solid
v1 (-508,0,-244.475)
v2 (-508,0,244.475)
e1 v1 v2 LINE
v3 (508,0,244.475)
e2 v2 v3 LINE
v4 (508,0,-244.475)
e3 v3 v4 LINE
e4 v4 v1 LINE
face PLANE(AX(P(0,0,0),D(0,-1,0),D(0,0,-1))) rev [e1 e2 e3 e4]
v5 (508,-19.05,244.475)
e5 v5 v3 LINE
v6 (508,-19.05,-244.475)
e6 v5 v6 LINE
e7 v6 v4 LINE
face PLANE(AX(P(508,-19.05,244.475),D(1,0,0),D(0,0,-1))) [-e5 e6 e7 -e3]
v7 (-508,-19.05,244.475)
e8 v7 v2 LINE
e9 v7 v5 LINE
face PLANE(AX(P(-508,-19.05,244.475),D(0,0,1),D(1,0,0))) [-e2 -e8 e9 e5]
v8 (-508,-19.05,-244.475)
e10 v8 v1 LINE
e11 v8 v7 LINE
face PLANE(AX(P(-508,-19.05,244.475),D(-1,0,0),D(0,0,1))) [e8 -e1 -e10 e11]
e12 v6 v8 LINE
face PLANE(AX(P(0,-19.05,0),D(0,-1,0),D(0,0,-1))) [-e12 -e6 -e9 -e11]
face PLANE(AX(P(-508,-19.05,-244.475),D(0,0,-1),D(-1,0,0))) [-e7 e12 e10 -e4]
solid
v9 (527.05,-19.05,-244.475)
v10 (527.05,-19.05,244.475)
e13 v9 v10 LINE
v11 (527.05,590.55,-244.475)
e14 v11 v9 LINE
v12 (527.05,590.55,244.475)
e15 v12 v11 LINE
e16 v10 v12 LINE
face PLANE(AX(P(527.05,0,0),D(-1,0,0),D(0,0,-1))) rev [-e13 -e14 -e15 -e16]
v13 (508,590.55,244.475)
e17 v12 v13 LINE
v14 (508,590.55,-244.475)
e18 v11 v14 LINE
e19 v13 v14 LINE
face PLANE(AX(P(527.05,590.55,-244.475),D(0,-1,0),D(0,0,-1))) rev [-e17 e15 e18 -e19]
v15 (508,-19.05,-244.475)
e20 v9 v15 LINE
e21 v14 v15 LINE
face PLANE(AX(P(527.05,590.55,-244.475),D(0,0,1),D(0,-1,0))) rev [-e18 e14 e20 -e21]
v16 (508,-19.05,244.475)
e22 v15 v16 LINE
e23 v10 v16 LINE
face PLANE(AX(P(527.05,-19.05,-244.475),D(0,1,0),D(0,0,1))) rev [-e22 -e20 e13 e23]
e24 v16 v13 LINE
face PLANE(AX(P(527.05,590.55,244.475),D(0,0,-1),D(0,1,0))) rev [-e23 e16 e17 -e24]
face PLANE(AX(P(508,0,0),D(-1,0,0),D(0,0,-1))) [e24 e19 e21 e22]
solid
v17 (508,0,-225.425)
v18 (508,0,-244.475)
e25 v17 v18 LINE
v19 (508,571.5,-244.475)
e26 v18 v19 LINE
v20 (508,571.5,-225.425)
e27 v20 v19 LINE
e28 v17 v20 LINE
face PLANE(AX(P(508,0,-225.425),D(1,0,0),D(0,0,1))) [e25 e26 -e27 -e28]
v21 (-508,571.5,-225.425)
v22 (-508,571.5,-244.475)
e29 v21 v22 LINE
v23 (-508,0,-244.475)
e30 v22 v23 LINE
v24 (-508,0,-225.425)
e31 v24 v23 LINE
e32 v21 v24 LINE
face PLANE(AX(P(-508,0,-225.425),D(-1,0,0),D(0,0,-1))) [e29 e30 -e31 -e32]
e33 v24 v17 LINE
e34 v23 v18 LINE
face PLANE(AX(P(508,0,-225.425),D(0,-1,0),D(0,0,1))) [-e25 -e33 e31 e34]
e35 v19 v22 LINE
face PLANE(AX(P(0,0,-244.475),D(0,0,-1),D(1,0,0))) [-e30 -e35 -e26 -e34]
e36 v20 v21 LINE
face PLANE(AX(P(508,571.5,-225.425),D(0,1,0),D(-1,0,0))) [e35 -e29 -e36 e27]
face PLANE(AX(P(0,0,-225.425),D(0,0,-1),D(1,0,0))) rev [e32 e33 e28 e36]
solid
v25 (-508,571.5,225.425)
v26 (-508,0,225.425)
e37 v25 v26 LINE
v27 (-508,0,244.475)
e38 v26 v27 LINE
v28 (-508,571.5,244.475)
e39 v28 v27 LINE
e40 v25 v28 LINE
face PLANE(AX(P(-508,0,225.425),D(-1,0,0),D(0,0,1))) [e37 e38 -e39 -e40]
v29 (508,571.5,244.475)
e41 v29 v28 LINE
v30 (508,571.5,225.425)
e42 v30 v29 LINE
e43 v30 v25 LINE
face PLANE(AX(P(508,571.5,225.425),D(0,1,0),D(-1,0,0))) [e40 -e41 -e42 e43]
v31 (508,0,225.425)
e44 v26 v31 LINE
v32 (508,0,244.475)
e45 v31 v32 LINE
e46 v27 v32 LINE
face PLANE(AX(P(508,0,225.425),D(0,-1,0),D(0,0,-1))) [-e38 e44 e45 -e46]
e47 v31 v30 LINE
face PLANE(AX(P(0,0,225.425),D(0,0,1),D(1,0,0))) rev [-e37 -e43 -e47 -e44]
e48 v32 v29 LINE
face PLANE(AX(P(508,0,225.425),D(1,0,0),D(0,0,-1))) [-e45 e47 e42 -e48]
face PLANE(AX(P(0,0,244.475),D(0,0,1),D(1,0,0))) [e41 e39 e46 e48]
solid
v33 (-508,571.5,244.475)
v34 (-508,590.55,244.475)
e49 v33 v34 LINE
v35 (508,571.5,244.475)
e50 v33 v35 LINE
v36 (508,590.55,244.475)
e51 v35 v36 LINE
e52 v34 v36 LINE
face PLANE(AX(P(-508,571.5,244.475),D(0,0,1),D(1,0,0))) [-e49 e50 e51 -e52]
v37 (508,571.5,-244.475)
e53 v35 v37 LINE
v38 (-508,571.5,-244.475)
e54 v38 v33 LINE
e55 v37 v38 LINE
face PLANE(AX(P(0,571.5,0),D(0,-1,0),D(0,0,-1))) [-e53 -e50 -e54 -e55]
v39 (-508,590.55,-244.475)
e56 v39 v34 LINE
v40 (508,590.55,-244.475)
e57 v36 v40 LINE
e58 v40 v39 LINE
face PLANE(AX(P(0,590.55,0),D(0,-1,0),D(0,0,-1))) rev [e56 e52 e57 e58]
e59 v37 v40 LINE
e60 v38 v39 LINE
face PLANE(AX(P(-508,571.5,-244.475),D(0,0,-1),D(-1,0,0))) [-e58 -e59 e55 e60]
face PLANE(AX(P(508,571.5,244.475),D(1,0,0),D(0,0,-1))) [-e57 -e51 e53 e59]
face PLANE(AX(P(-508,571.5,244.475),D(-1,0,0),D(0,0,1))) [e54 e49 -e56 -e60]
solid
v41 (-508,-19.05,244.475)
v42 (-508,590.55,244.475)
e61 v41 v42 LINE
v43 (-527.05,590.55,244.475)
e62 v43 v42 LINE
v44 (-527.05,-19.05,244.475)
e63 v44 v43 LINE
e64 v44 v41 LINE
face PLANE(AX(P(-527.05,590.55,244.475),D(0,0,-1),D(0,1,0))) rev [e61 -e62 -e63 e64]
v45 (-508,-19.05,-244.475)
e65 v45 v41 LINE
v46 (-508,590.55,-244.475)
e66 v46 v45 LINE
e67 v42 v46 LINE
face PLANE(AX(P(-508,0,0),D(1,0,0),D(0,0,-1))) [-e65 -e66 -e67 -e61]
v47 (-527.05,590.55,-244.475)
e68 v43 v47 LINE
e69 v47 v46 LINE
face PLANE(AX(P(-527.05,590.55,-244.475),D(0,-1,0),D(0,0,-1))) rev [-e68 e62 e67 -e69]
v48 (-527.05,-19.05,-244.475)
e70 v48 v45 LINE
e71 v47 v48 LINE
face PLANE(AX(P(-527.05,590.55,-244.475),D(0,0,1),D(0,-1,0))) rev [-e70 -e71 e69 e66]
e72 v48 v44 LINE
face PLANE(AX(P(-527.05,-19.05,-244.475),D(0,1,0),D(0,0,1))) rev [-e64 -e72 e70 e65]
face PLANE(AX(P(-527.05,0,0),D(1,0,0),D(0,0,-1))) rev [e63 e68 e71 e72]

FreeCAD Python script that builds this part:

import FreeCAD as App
import Part
import Sketcher

V = App.Vector
Q = App.Units.Quantity

doc = App.newDocument("Part")
params = doc.addObject("Spreadsheet::Sheet", "Params")
for row, (alias, value) in enumerate([
    ("sketch1_width", "40 in"),
    ("sketch1_height", "19.25 in"),
    ("pad1_length", "0.75 in"),
    ("sketch2_width", "24 in"),
    ("sketch2_height", "19.25 in"),
    ("pad2_length", "0.75 in"),
    ("sketch3_width", "40 in"),
    ("sketch3_height", "19.25 in"),
    ("pad3_length", "0.75 in"),
    ("sketch4_width", "40 in"),
    ("sketch4_height", "22.5 in"),
    ("pad4_length", "0.75 in"),
], start=1):
    params.set(f"A{row}", alias)
    params.set(f"B{row}", "=" + value)
    params.setAlias(f"B{row}", alias)

body = doc.addObject("PartDesign::Body", "Body")

# Sketch on XZ plane
sketch1 = body.newObject("Sketcher::SketchObject", "Sketch")
sketch1.AttachmentSupport = (doc.getObject("XZ_Plane"), [""])
sketch1.MapMode = "FlatFace"
sketch1.addGeometry([
    Part.LineSegment(V(-508, -244, 0), V(-508, 244, 0)),
    Part.LineSegment(V(-508, 244, 0), V(508, 244, 0)),
    Part.LineSegment(V(508, 244, 0), V(508, -244, 0)),
    Part.LineSegment(V(508, -244, 0), V(-508, -244, 0)),
], False)
sketch1.addConstraint([
    Sketcher.Constraint("Coincident", 0, 2, 1, 1),
    Sketcher.Constraint("Coincident", 1, 2, 2, 1),
    Sketcher.Constraint("Coincident", 2, 2, 3, 1),
    Sketcher.Constraint("Coincident", 3, 2, 0, 1),
    Sketcher.Constraint("Vertical", 0),
    Sketcher.Constraint("Horizontal", 1),
    Sketcher.Constraint("Vertical", 2),
    Sketcher.Constraint("Horizontal", 3),
    Sketcher.Constraint("Symmetric", 0, 2, 2, 2, -1, 1),
    Sketcher.Constraint("DistanceX", 1, 1, 1, 2, Q("40 in")),
    Sketcher.Constraint("DistanceY", 0, 1, 0, 2, Q("19.25 in")),
])
sketch1.setExpression("Constraints[9]", "Params.sketch1_width")
sketch1.setExpression("Constraints[10]", "Params.sketch1_height")
pad1 = body.newObject("PartDesign::Pad", "Pad")
pad1.Profile = sketch1
pad1.setExpression("Length", "Params.pad1_length")
body2 = doc.addObject("PartDesign::Body", "Body001")

# Sketch on YZ plane
sketch2 = body2.newObject("Sketcher::SketchObject", "Sketch001")
sketch2.AttachmentSupport = (doc.getObject("YZ_Plane001"), [""])
sketch2.MapMode = "FlatFace"
sketch2.AttachmentOffset = App.Placement(V(0, 0, -20 * 25.4), App.Rotation())
sketch2.addGeometry([
    Part.LineSegment(V(591, -244, 0), V(-19, -244, 0)),
    Part.LineSegment(V(-19, -244, 0), V(-19, 244, 0)),
    Part.LineSegment(V(-19, 244, 0), V(591, 244, 0)),
    Part.LineSegment(V(591, 244, 0), V(591, -244, 0)),
], False)
sketch2.addConstraint([
    Sketcher.Constraint("Coincident", 0, 2, 1, 1),
    Sketcher.Constraint("Coincident", 1, 2, 2, 1),
    Sketcher.Constraint("Coincident", 2, 2, 3, 1),
    Sketcher.Constraint("Coincident", 3, 2, 0, 1),
    Sketcher.Constraint("Horizontal", 0),
    Sketcher.Constraint("Vertical", 1),
    Sketcher.Constraint("Horizontal", 2),
    Sketcher.Constraint("Vertical", 3),
    Sketcher.Constraint("DistanceX", 0, 2, 0, 1, Q("24 in")),
    Sketcher.Constraint("DistanceY", 1, 1, 1, 2, Q("19.25 in")),
    Sketcher.Constraint("DistanceX", 0, 2, -1, 1, Q("0.75 in")),
    Sketcher.Constraint("DistanceY", 0, 2, -1, 1, Q("9.625 in")),
])
sketch2.setExpression("Constraints[8]", "Params.sketch2_width")
sketch2.setExpression("Constraints[9]", "Params.sketch2_height")
pad2 = body2.newObject("PartDesign::Pad", "Pad001")
pad2.Profile = sketch2
pad2.setExpression("Length", "Params.pad2_length")
pad2.Reversed = True
body3 = doc.addObject("PartDesign::Body", "Body002")
doc.recompute()

mirroring = doc.addObject("Part::Mirroring", "Mirroring")
mirroring.Source = body2
mirroring.Base = V(0, 0, 0)
mirroring.Normal = V(1, 0, 0)
body3.BaseFeature = mirroring
doc.recompute()
body4 = doc.addObject("PartDesign::Body", "Body003")

# Sketch on XZ plane
sketch3 = body4.newObject("Sketcher::SketchObject", "Sketch002")
sketch3.AttachmentSupport = (doc.getObject("XZ_Plane003"), [""])
sketch3.MapMode = "FlatFace"
sketch3.AttachmentOffset = App.Placement(V(0, 0, -23.25 * 25.4), App.Rotation())
sketch3.addGeometry([
    Part.LineSegment(V(-508, -244, 0), V(-508, 244, 0)),
    Part.LineSegment(V(-508, 244, 0), V(508, 244, 0)),
    Part.LineSegment(V(508, 244, 0), V(508, -244, 0)),
    Part.LineSegment(V(508, -244, 0), V(-508, -244, 0)),
], False)
sketch3.addConstraint([
    Sketcher.Constraint("Coincident", 0, 2, 1, 1),
    Sketcher.Constraint("Coincident", 1, 2, 2, 1),
    Sketcher.Constraint("Coincident", 2, 2, 3, 1),
    Sketcher.Constraint("Coincident", 3, 2, 0, 1),
    Sketcher.Constraint("Vertical", 0),
    Sketcher.Constraint("Horizontal", 1),
    Sketcher.Constraint("Vertical", 2),
    Sketcher.Constraint("Horizontal", 3),
    Sketcher.Constraint("Symmetric", 0, 2, 2, 2, -1, 1),
    Sketcher.Constraint("DistanceX", 1, 1, 1, 2, Q("40 in")),
    Sketcher.Constraint("DistanceY", 0, 1, 0, 2, Q("19.25 in")),
])
sketch3.setExpression("Constraints[9]", "Params.sketch3_width")
sketch3.setExpression("Constraints[10]", "Params.sketch3_height")
pad3 = body4.newObject("PartDesign::Pad", "Pad002")
pad3.Profile = sketch3
pad3.setExpression("Length", "Params.pad3_length")
body5 = doc.addObject("PartDesign::Body", "Body004")

# Sketch on XY plane
sketch4 = body5.newObject("Sketcher::SketchObject", "Sketch003")
sketch4.AttachmentSupport = (doc.getObject("XY_Plane004"), [""])
sketch4.MapMode = "FlatFace"
sketch4.AttachmentOffset = App.Placement(V(0, 0, 9.625 * 25.4), App.Rotation())
sketch4.addGeometry([
    Part.LineSegment(V(-508, 572, 0), V(-508, 0, 0)),
    Part.LineSegment(V(-508, 0, 0), V(508, 0, 0)),
    Part.LineSegment(V(508, 0, 0), V(508, 572, 0)),
    Part.LineSegment(V(508, 572, 0), V(-508, 572, 0)),
], False)
sketch4.addConstraint([
    Sketcher.Constraint("Coincident", 0, 2, 1, 1),
    Sketcher.Constraint("Coincident", 1, 2, 2, 1),
    Sketcher.Constraint("Coincident", 2, 2, 3, 1),
    Sketcher.Constraint("Coincident", 3, 2, 0, 1),
    Sketcher.Constraint("Vertical", 0),
    Sketcher.Constraint("Horizontal", 1),
    Sketcher.Constraint("Vertical", 2),
    Sketcher.Constraint("Horizontal", 3),
    Sketcher.Constraint("Symmetric", 0, 2, 1, 2, -1, 1),
    Sketcher.Constraint("DistanceX", 1, 1, 1, 2, Q("40 in")),
    Sketcher.Constraint("DistanceY", 0, 2, 0, 1, Q("22.5 in")),
])
sketch4.setExpression("Constraints[9]", "Params.sketch4_width")
sketch4.setExpression("Constraints[10]", "Params.sketch4_height")
pad4 = body5.newObject("PartDesign::Pad", "Pad003")
pad4.Profile = sketch4
pad4.setExpression("Length", "Params.pad4_length")
pad4.Reversed = True
body6 = doc.addObject("PartDesign::Body", "Body005")
doc.recompute()

mirroring2 = doc.addObject("Part::Mirroring", "Mirroring001")
mirroring2.Source = body5
mirroring2.Base = V(0, 0, 0)
mirroring2.Normal = V(0, 0, 1)
body6.BaseFeature = mirroring2
doc.recompute()
mirroring.Visibility = False
mirroring2.Visibility = False

doc.recompute()
